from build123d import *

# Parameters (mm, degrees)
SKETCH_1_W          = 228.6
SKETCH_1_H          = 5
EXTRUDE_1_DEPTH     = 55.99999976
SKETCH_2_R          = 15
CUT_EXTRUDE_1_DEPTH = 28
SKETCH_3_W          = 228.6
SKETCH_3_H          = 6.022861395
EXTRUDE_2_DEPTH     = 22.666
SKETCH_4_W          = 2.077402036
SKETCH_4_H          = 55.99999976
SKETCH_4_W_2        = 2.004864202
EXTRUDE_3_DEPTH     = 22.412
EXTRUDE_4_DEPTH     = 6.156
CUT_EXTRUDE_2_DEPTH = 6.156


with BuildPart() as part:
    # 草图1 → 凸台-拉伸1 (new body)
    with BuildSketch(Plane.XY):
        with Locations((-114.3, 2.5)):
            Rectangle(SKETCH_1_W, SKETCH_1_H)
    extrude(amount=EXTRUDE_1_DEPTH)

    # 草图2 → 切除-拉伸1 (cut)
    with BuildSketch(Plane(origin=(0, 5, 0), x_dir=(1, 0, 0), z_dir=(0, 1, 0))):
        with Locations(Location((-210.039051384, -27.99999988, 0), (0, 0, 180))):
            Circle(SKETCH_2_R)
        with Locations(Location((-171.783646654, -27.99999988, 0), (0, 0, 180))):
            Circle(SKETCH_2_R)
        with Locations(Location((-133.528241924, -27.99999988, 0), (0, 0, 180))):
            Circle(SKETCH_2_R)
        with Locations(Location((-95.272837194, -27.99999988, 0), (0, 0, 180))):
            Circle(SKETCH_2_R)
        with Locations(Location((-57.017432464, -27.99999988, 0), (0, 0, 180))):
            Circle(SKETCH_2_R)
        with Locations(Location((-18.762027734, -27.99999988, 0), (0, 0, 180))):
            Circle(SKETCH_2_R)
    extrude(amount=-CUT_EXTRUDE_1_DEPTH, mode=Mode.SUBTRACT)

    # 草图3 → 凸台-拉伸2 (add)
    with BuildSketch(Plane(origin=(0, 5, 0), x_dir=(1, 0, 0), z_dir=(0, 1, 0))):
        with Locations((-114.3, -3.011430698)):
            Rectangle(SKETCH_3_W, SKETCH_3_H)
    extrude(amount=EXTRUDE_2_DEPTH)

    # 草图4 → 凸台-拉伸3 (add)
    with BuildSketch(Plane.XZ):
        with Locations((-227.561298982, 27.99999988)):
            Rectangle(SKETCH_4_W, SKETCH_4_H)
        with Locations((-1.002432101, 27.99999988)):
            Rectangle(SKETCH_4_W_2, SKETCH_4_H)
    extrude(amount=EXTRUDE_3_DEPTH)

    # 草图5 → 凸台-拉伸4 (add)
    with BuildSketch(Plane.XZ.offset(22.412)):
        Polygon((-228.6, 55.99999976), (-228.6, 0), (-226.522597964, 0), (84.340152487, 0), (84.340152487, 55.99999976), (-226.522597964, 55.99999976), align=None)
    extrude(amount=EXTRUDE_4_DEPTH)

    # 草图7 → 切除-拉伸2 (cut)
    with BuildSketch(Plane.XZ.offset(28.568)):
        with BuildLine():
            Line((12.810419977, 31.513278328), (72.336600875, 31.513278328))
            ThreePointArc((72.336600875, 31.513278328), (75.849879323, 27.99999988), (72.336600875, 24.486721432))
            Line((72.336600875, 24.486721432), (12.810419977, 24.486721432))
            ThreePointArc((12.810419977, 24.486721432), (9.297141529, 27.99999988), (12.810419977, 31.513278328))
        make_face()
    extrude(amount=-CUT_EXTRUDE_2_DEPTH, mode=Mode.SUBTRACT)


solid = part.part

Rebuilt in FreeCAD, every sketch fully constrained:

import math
import FreeCAD as App
import Part
import Sketcher
from FreeCAD import Vector


def add_polygon(sketch, points):
    """Adds a closed chain of lines whose ends are joined by coincident constraints."""
    first, n = sketch.GeometryCount, len(points)
    for a, b in zip(points, points[1:] + points[:1]):
        sketch.addGeometry(Part.LineSegment(App.Vector(*a, 0), App.Vector(*b, 0)), False)
    for i in range(n):
        sketch.addConstraint(Sketcher.Constraint("Coincident", first + i, 2, first + (i + 1) % n, 1))

doc = App.newDocument("Part")
params = doc.addObject("Spreadsheet::Sheet", "Params")
for row, (alias, value) in enumerate([
    ("sketch1_height", "5 mm"),
    ("sketch1_width", "228.6 mm"),
    ("pad1_length", "56 mm"),
    ("sketch2_diameter", "30 mm"),
    ("pocket1_length", "28 mm"),
    ("sketch3_width", "228.6 mm"),
    ("pad2_length", "22.666 mm"),
    ("sketch4_height", "56 mm"),
    ("pad3_length", "22.412 mm"),
    ("sketch5_height", "56 mm"),
    ("pad4_length", "6.156 mm"),
    ("pocket2_length", "6.156 mm"),
], start=1):
    params.set(f"A{row}", alias)
    params.set(f"B{row}", "=" + value)
    params.setAlias(f"B{row}", alias)

body = doc.addObject("PartDesign::Body", "Body")

# Sketch on XY plane
sketch1 = doc.addObject("Sketcher::SketchObject", "Sketch")
body.addObject(sketch1)
sketch1.AttachmentSupport = (doc.XY_Plane, [""])
sketch1.MapMode = "FlatFace"
add_polygon(sketch1, [(-228.6, 5), (-228.6, 0), (0, 0), (0, 5)])  # lines 0-3
sketch1.addConstraint([
    Sketcher.Constraint("Vertical", 0),
    Sketcher.Constraint("Horizontal", 1),
    Sketcher.Constraint("Vertical", 2),
    Sketcher.Constraint("Horizontal", 3),
    Sketcher.Constraint("Coincident", 1, 2, -1, 1),
    Sketcher.Constraint("DistanceY", 0, 2, 0, 1, 5.0),
    Sketcher.Constraint("DistanceX", 1, 1, 1, 2, 228.6),
])
sketch1.setExpression("Constraints[9]", "Params.sketch1_height")
sketch1.setExpression("Constraints[10]", "Params.sketch1_width")
pad1 = doc.addObject("PartDesign::Pad", "Pad")
body.addObject(pad1)
pad1.Profile = sketch1
pad1.setExpression("Length", "Params.pad1_length")

# Sketch on XZ plane
sketch2 = doc.addObject("Sketcher::SketchObject", "Sketch001")
body.addObject(sketch2)
sketch2.AttachmentSupport = (doc.XZ_Plane, [""])
sketch2.MapMode = "FlatFace"
sketch2.AttachmentOffset = App.Placement(Vector(0, 0, -5), App.Rotation())
sketch2.addGeometry([
    Part.Circle(Vector(-210.039051, 28, 0), Vector(0, 0, 1), 15),  # 0
    Part.Circle(Vector(-171.783647, 28, 0), Vector(0, 0, 1), 15),  # 1
    Part.Circle(Vector(-133.528242, 28, 0), Vector(0, 0, 1), 15),  # 2
    Part.Circle(Vector(-95.272837, 28, 0), Vector(0, 0, 1), 15),  # 3
    Part.Circle(Vector(-57.017432, 28, 0), Vector(0, 0, 1), 15),  # 4
    Part.Circle(Vector(-18.762028, 28, 0), Vector(0, 0, 1), 15),  # 5
], False)
sketch2.addConstraint([
    Sketcher.Constraint("Equal", 0, 1),
    Sketcher.Constraint("Equal", 1, 2),
    Sketcher.Constraint("Equal", 2, 3),
    Sketcher.Constraint("Equal", 3, 4),
    Sketcher.Constraint("Equal", 4, 5),
    Sketcher.Constraint("Horizontal", 0, 3, 1, 3),
    Sketcher.Constraint("Horizontal", 1, 3, 2, 3),
    Sketcher.Constraint("Horizontal", 2, 3, 3, 3),
    Sketcher.Constraint("Horizontal", 3, 3, 4, 3),
    Sketcher.Constraint("Horizontal", 4, 3, 5, 3),
    Sketcher.Constraint("Diameter", 0, 30.0),
    Sketcher.Constraint("DistanceY", -1, 1, 0, 3, 28.0),
    Sketcher.Constraint("DistanceX", 0, 3, -1, 1, 210.039051),
    Sketcher.Constraint("DistanceX", 2, 3, -1, 1, 133.528242),
    Sketcher.Constraint("DistanceX", 1, 3, 3, 3, 76.510809),
    Sketcher.Constraint("DistanceX", 2, 3, 4, 3, 76.510809),
    Sketcher.Constraint("DistanceX", 3, 3, 5, 3, 76.510809),
    Sketcher.Constraint("DistanceX", 1, 3, -1, 1, 171.783647),
])
sketch2.setExpression("Constraints[10]", "Params.sketch2_diameter")
pocket1 = doc.addObject("PartDesign::Pocket", "Pocket")
body.addObject(pocket1)
pocket1.Profile = sketch2
pocket1.setExpression("Length", "Params.pocket1_length")
pocket1.Reversed = True

# Sketch on XZ plane
sketch3 = doc.addObject("Sketcher::SketchObject", "Sketch002")
body.addObject(sketch3)
sketch3.AttachmentSupport = (doc.XZ_Plane, [""])
sketch3.MapMode = "FlatFace"
sketch3.AttachmentOffset = App.Placement(Vector(0, 0, -5), App.Rotation())
add_polygon(sketch3, [(-228.6, 0), (-228.6, 6.022861), (0, 6.022861), (0, 0)])  # lines 0-3
sketch3.addConstraint([
    Sketcher.Constraint("Vertical", 0),
    Sketcher.Constraint("Horizontal", 1),
    Sketcher.Constraint("Vertical", 2),
    Sketcher.Constraint("Horizontal", 3),
    Sketcher.Constraint("Coincident", 2, 2, -1, 1),
    Sketcher.Constraint("DistanceX", 1, 1, 1, 2, 228.6),
    Sketcher.Constraint("DistanceY", 0, 1, 0, 2, 6.022861),
])
sketch3.setExpression("Constraints[9]", "Params.sketch3_width")
pad2 = doc.addObject("PartDesign::Pad", "Pad001")
body.addObject(pad2)
pad2.Profile = sketch3
pad2.setExpression("Length", "Params.pad2_length")
pad2.Reversed = True

# Sketch on XZ plane
sketch4 = doc.addObject("Sketcher::SketchObject", "Sketch003")
body.addObject(sketch4)
sketch4.AttachmentSupport = (doc.XZ_Plane, [""])
sketch4.MapMode = "FlatFace"
add_polygon(sketch4, [(-228.6, 56), (-228.6, 0), (-226.522598, 0), (-226.522598, 56)])  # lines 0-3
add_polygon(sketch4, [(-2.004864, 56), (-2.004864, 0), (0, 0), (0, 56)])  # lines 4-7
sketch4.addConstraint([
    Sketcher.Constraint("Vertical", 0),
    Sketcher.Constraint("Horizontal", 1),
    Sketcher.Constraint("Vertical", 2),
    Sketcher.Constraint("Horizontal", 3),
    Sketcher.Constraint("Vertical", 4),
    Sketcher.Constraint("Horizontal", 5),
    Sketcher.Constraint("Vertical", 6),
    Sketcher.Constraint("Horizontal", 7),
    Sketcher.Constraint("Coincident", 5, 2, -1, 1),
    Sketcher.Constraint("PointOnObject", 0, 2, -1),
    Sketcher.Constraint("Horizontal", 3, 2, 6, 2),
    Sketcher.Constraint("DistanceY", 0, 2, 0, 1, 56.0),
    Sketcher.Constraint("DistanceX", 0, 2, -1, 1, 228.6),
    Sketcher.Constraint("DistanceX", 1, 1, 1, 2, 2.077402),
    Sketcher.Constraint("DistanceX", 5, 1, 5, 2, 2.004864),
])
sketch4.setExpression("Constraints[19]", "Params.sketch4_height")
pad3 = doc.addObject("PartDesign::Pad", "Pad002")
body.addObject(pad3)
pad3.Profile = sketch4
pad3.setExpression("Length", "Params.pad3_length")

# Sketch on XZ plane
sketch5 = doc.addObject("Sketcher::SketchObject", "Sketch004")
body.addObject(sketch5)
sketch5.AttachmentSupport = (doc.XZ_Plane, [""])
sketch5.MapMode = "FlatFace"
sketch5.AttachmentOffset = App.Placement(Vector(0, 0, 22.412), App.Rotation())
add_polygon(sketch5, [(-228.6, 56), (-228.6, 0), (84.340152, 0), (84.340152, 56)])  # lines 0-3
sketch5.addConstraint([
    Sketcher.Constraint("Vertical", 0),
    Sketcher.Constraint("Horizontal", 1),
    Sketcher.Constraint("Vertical", 2),
    Sketcher.Constraint("Horizontal", 3),
    Sketcher.Constraint("PointOnObject", 0, 2, -1),
    Sketcher.Constraint("DistanceY", 0, 2, 0, 1, 56.0),
    Sketcher.Constraint("DistanceX", 0, 2, -1, 1, 228.6),
    Sketcher.Constraint("DistanceX", 1, 1, 1, 2, 312.940152),
])
sketch5.setExpression("Constraints[9]", "Params.sketch5_height")
pad4 = doc.addObject("PartDesign::Pad", "Pad003")
body.addObject(pad4)
pad4.Profile = sketch5
pad4.setExpression("Length", "Params.pad4_length")

# Sketch on XZ plane
sketch6 = doc.addObject("Sketcher::SketchObject", "Sketch005")
body.addObject(sketch6)
sketch6.AttachmentSupport = (doc.XZ_Plane, [""])
sketch6.MapMode = "FlatFace"
sketch6.AttachmentOffset = App.Placement(Vector(0, 0, 28.568), App.Rotation())
sketch6.addGeometry([
    Part.LineSegment(Vector(72.336601, 31.513278, 0), Vector(12.81042, 31.513278, 0)),
    Part.ArcOfCircle(Part.Circle(Vector(12.81042, 28, 0), Vector(0, 0, 1), 3.513278), math.radians(90), math.radians(270)),
    Part.LineSegment(Vector(12.81042, 24.486721, 0), Vector(72.336601, 24.486721, 0)),
    Part.ArcOfCircle(Part.Circle(Vector(72.336601, 28, 0), Vector(0, 0, 1), 3.513278), math.radians(-90), math.radians(90)),
], False)
sketch6.addConstraint([
    Sketcher.Constraint("Tangent", 0, 2, 1, 1),
    Sketcher.Constraint("Tangent", 1, 2, 2, 1),
    Sketcher.Constraint("Tangent", 2, 2, 3, 1),
    Sketcher.Constraint("Tangent", 3, 2, 0, 1),
    Sketcher.Constraint("Horizontal", 0),
    Sketcher.Constraint("Horizontal", 2),
    Sketcher.Constraint("DistanceY", -1, 1, 1, 3, 28.0),
    Sketcher.Constraint("Radius", 1, 3.513278),
    Sketcher.Constraint("DistanceX", 0, 2, 0, 1, 59.526181),
    Sketcher.Constraint("DistanceX", -1, 1, 3, 3, 72.336601),
])
pocket2 = doc.addObject("PartDesign::Pocket", "Pocket001")
body.addObject(pocket2)
pocket2.Profile = sketch6
pocket2.setExpression("Length", "Params.pocket2_length")

doc.recompute()
